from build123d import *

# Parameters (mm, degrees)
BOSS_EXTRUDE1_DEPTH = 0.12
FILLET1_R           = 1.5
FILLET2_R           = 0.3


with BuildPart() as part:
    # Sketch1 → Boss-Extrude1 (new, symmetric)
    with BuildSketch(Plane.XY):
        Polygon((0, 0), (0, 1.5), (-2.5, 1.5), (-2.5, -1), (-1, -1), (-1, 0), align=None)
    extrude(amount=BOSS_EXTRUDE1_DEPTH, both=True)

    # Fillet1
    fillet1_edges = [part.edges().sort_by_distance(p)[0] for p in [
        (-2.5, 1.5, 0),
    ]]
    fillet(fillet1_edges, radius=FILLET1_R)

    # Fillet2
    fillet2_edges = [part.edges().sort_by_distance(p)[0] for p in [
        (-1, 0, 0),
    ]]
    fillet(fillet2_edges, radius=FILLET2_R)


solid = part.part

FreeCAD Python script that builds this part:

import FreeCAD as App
import Part
import Sketcher

V = App.Vector


def edges_at(feature, points):
    """Names of the edges that pass closest to the given points."""
    edges = feature.Shape.Edges
    near = lambda p: min(range(len(edges)), key=lambda i: edges[i].distToShape(Part.Vertex(*p))[0])
    return sorted({f"Edge{near(p) + 1}" for p in points})


def add_polygon(sketch, points):
    """Adds a closed chain of lines whose ends are joined by coincident constraints."""
    first, n = sketch.GeometryCount, len(points)
    for a, b in zip(points, points[1:] + points[:1]):
        sketch.addGeometry(Part.LineSegment(App.Vector(*a, 0), App.Vector(*b, 0)), False)
    for i in range(n):
        sketch.addConstraint(Sketcher.Constraint("Coincident", first + i, 2, first + (i + 1) % n, 1))

doc = App.newDocument("Part")
body = doc.addObject("PartDesign::Body", "Body")

sketch1 = body.newObject("Sketcher::SketchObject", "Sketch")
sketch1.AttachmentSupport = (doc.getObject("XY_Plane"), [""])
sketch1.MapMode = "FlatFace"
add_polygon(sketch1, [(0, 0), (0, 1.5), (-2.5, 1.5), (-2.5, -1), (-1, -1), (-1, 0)])
sketch1.addConstraint(Sketcher.Constraint("Vertical", 0))
sketch1.addConstraint(Sketcher.Constraint("Horizontal", 1))
sketch1.addConstraint(Sketcher.Constraint("Vertical", 2))
sketch1.addConstraint(Sketcher.Constraint("Horizontal", 3))
sketch1.addConstraint(Sketcher.Constraint("Vertical", 4))
sketch1.addConstraint(Sketcher.Constraint("Horizontal", 5))
sketch1.addConstraint(Sketcher.Constraint("Coincident", 5, 2, -1, 1))
sketch1.addConstraint(Sketcher.Constraint("Equal", 3, 0))
sketch1.addConstraint(Sketcher.Constraint("Equal", 1, 2))
sketch1.addConstraint(Sketcher.Constraint("DistanceX", 5, 1, 5, 2, 1.0))
sketch1.addConstraint(Sketcher.Constraint("DistanceX", 1, 2, 1, 1, 2.5))
pad1 = body.newObject("PartDesign::Pad", "Pad")
pad1.Profile = sketch1
pad1.Length = 0.24
pad1.Midplane = True
doc.recompute()

fillet = body.newObject("PartDesign::Fillet", "Fillet")
fillet.Base = (pad1, edges_at(pad1, [(-2.5, 1.5, 0)]))
fillet.Radius = 1.5
doc.recompute()

fillet2 = body.newObject("PartDesign::Fillet", "Fillet001")
fillet2.Base = (fillet, edges_at(fillet, [(-1, 0, 0)]))
fillet2.Radius = 0.3

doc.recompute()
